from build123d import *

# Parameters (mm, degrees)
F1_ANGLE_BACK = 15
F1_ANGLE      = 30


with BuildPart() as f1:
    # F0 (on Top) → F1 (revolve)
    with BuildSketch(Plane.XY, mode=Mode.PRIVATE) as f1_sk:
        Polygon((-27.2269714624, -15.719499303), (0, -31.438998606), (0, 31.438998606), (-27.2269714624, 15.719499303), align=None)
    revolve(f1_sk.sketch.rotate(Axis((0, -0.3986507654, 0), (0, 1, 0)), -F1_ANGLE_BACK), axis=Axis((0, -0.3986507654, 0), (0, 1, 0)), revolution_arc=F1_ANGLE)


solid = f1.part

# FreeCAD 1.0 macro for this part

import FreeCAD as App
import Part
import Sketcher
Q = App.Units.Quantity

doc = App.newDocument("Part")
params = doc.addObject("Spreadsheet::Sheet", "Params")
for row, (alias, value) in enumerate([
    ("revolution_angle", "30 deg"),
], start=1):
    params.set(f"A{row}", alias)
    params.set(f"B{row}", "=" + value)
    params.setAlias(f"B{row}", alias)

body = doc.addObject("PartDesign::Body", "Body")

sketch1 = body.newObject("Sketcher::SketchObject", "Sketch")
sketch1.Placement = App.Placement(App.Vector(0, 0, 0), App.Rotation(App.Vector(0.965925826, 0, 0.258819045), App.Vector(0, 0.999999999, 0), App.Vector(-0.258819045, 0, 0.965925826), "ZXY"))
sketch1.addGeometry([
    Part.LineSegment(App.Vector(-27, -16, 0), App.Vector(0, -31, 0)),
    Part.LineSegment(App.Vector(0, -31, 0), App.Vector(0, 31, 0)),
    Part.LineSegment(App.Vector(0, 31, 0), App.Vector(-27, 16, 0)),
    Part.LineSegment(App.Vector(-27, 16, 0), App.Vector(-27, -16, 0)),
], False)
sketch1.addConstraint([
    Sketcher.Constraint("Coincident", 0, 2, 1, 1),
    Sketcher.Constraint("Coincident", 1, 2, 2, 1),
    Sketcher.Constraint("Coincident", 2, 2, 3, 1),
    Sketcher.Constraint("Coincident", 3, 2, 0, 1),
    Sketcher.Constraint("Vertical", 1),
    Sketcher.Constraint("Vertical", 3),
    Sketcher.Constraint("Symmetric", 0, 2, 1, 2, -1, 1),
    Sketcher.Constraint("Equal", 0, 2),
    Sketcher.Constraint("Angle", 0, Q("-30 deg")),
    Sketcher.Constraint("DistanceY", 3, 2, 3, 1, Q("31.438999 mm")),
    Sketcher.Constraint("Distance", 0, Q("31.438999 mm")),
])
revolution = body.newObject("PartDesign::Revolution", "Revolution")
revolution.Profile = sketch1
revolution.ReferenceAxis = (sketch1, ["V_Axis"])
revolution.setExpression("Angle", "Params.revolution_angle")

doc.recompute()
